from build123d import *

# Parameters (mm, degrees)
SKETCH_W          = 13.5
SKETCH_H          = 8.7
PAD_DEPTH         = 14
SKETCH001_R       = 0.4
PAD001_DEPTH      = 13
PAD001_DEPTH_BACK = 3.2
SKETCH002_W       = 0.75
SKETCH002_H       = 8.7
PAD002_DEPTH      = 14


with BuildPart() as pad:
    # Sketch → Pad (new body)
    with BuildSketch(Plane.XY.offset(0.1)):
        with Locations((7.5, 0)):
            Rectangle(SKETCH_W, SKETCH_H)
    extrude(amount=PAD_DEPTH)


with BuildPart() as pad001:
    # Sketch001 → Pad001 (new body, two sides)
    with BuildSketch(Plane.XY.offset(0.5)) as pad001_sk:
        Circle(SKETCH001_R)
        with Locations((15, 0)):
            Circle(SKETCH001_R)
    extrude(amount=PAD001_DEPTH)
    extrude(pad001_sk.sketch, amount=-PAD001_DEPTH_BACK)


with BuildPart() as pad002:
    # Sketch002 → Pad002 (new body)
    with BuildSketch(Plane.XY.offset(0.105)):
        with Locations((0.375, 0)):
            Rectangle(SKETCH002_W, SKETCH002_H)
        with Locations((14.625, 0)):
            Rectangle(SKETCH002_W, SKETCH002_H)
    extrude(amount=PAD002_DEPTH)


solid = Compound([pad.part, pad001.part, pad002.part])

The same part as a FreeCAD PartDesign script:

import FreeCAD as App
import Part
import Sketcher

V = App.Vector


def add_polygon(sketch, points):
    """Adds a closed chain of lines whose ends are joined by coincident constraints."""
    first, n = sketch.GeometryCount, len(points)
    for a, b in zip(points, points[1:] + points[:1]):
        sketch.addGeometry(Part.LineSegment(App.Vector(*a, 0), App.Vector(*b, 0)), False)
    for i in range(n):
        sketch.addConstraint(Sketcher.Constraint("Coincident", first + i, 2, first + (i + 1) % n, 1))

doc = App.newDocument("Part")
params = doc.addObject("Spreadsheet::Sheet", "Params")
for row, (alias, value) in enumerate([
    ("sketch1_width", "13.5 mm"),
    ("sketch1_height", "8.7 mm"),
    ("pad1_length", "14 mm"),
    ("sketch2_diameter", "0.8 mm"),
    ("pad2_length", "13 mm"),
    ("pad2_length2", "3.2 mm"),
    ("sketch3_height", "8.7 mm"),
    ("sketch3_width", "0.75 mm"),
    ("pad3_length", "14 mm"),
], start=1):
    params.set(f"A{row}", alias)
    params.set(f"B{row}", "=" + value)
    params.setAlias(f"B{row}", alias)

body = doc.addObject("PartDesign::Body", "Body")

# Sketch on XY plane
sketch1 = doc.addObject("Sketcher::SketchObject", "Sketch")
body.addObject(sketch1)
sketch1.AttachmentSupport = (doc.XY_Plane, [""])
sketch1.MapMode = "FlatFace"
sketch1.AttachmentOffset = App.Placement(V(0, 0, 0.1), App.Rotation())
add_polygon(sketch1, [(1, 4), (1, -4), (14, -4), (14, 4)])  # lines 0-3
sketch1.addConstraint([
    Sketcher.Constraint("Vertical", 0),
    Sketcher.Constraint("Horizontal", 1),
    Sketcher.Constraint("Vertical", 2),
    Sketcher.Constraint("Horizontal", 3),
    Sketcher.Constraint("DistanceX", 1, 1, 1, 2, 13.5),
    Sketcher.Constraint("DistanceY", 0, 2, 0, 1, 8.7),
    Sketcher.Constraint("DistanceX", -1, 1, 0, 2, 0.75),
    Sketcher.Constraint("DistanceY", 0, 2, -1, 1, 4.35),
])
sketch1.setExpression("Constraints[8]", "Params.sketch1_width")
sketch1.setExpression("Constraints[9]", "Params.sketch1_height")
pad1 = doc.addObject("PartDesign::Pad", "Pad")
body.addObject(pad1)
pad1.Profile = sketch1
pad1.setExpression("Length", "Params.pad1_length")
body2 = doc.addObject("PartDesign::Body", "Body001")
body2.AllowCompound = True

# Sketch on XY plane
sketch2 = doc.addObject("Sketcher::SketchObject", "Sketch001")
body2.addObject(sketch2)
sketch2.AttachmentSupport = (doc.getObject("XY_Plane001"), [""])
sketch2.MapMode = "FlatFace"
sketch2.AttachmentOffset = App.Placement(V(0, 0, 0.5), App.Rotation())
sketch2.addGeometry([
    Part.Circle(V(0, 0, 0), V(0, 0, 1), 0.4),
    Part.Circle(V(15, 0, 0), V(0, 0, 1), 0.4),
], False)
sketch2.addConstraint([
    Sketcher.Constraint("Coincident", 0, 3, -1, 1),
    Sketcher.Constraint("Equal", 0, 1),
    Sketcher.Constraint("PointOnObject", 1, 3, -1),
    Sketcher.Constraint("Diameter", 0, 0.8),
    Sketcher.Constraint("DistanceX", -1, 1, 1, 3, 15.0),
])
sketch2.setExpression("Constraints[3]", "Params.sketch2_diameter")
pad2 = doc.addObject("PartDesign::Pad", "Pad001")
body2.addObject(pad2)
pad2.Profile = sketch2
pad2.Type = "TwoLengths"
pad2.setExpression("Length", "Params.pad2_length")
pad2.setExpression("Length2", "Params.pad2_length2")
body3 = doc.addObject("PartDesign::Body", "Body002")
body3.AllowCompound = True

# Sketch on XY plane
sketch3 = doc.addObject("Sketcher::SketchObject", "Sketch002")
body3.addObject(sketch3)
sketch3.AttachmentSupport = (doc.getObject("XY_Plane002"), [""])
sketch3.MapMode = "FlatFace"
sketch3.AttachmentOffset = App.Placement(V(0, 0, 0.105), App.Rotation())
add_polygon(sketch3, [(0, 4.3), (0, -4.3), (0.8, -4.3), (0.8, 4.3)])  # lines 0-3
add_polygon(sketch3, [(14.2, 4.3), (14.2, -4.3), (15, -4.3), (15, 4.3)])  # lines 4-7
sketch3.addConstraint([
    Sketcher.Constraint("Vertical", 0),
    Sketcher.Constraint("Horizontal", 1),
    Sketcher.Constraint("Vertical", 2),
    Sketcher.Constraint("Horizontal", 3),
    Sketcher.Constraint("Vertical", 4),
    Sketcher.Constraint("Horizontal", 5),
    Sketcher.Constraint("Vertical", 6),
    Sketcher.Constraint("Horizontal", 7),
    Sketcher.Constraint("Symmetric", 0, 2, 3, 2, -1, 1),
    Sketcher.Constraint("Horizontal", 1, 2, 4, 2),
    Sketcher.Constraint("Horizontal", 3, 2, 6, 2),
    Sketcher.Constraint("Equal", 3, 5),
    Sketcher.Constraint("DistanceY", 0, 2, 0, 1, 8.7),
    Sketcher.Constraint("DistanceX", -1, 1, 5, 2, 15.0),
    Sketcher.Constraint("DistanceX", 1, 1, 1, 2, 0.75),
])
sketch3.setExpression("Constraints[20]", "Params.sketch3_height")
sketch3.setExpression("Constraints[22]", "Params.sketch3_width")
pad3 = doc.addObject("PartDesign::Pad", "Pad002")
body3.addObject(pad3)
pad3.Profile = sketch3
pad3.setExpression("Length", "Params.pad3_length")

doc.recompute()
